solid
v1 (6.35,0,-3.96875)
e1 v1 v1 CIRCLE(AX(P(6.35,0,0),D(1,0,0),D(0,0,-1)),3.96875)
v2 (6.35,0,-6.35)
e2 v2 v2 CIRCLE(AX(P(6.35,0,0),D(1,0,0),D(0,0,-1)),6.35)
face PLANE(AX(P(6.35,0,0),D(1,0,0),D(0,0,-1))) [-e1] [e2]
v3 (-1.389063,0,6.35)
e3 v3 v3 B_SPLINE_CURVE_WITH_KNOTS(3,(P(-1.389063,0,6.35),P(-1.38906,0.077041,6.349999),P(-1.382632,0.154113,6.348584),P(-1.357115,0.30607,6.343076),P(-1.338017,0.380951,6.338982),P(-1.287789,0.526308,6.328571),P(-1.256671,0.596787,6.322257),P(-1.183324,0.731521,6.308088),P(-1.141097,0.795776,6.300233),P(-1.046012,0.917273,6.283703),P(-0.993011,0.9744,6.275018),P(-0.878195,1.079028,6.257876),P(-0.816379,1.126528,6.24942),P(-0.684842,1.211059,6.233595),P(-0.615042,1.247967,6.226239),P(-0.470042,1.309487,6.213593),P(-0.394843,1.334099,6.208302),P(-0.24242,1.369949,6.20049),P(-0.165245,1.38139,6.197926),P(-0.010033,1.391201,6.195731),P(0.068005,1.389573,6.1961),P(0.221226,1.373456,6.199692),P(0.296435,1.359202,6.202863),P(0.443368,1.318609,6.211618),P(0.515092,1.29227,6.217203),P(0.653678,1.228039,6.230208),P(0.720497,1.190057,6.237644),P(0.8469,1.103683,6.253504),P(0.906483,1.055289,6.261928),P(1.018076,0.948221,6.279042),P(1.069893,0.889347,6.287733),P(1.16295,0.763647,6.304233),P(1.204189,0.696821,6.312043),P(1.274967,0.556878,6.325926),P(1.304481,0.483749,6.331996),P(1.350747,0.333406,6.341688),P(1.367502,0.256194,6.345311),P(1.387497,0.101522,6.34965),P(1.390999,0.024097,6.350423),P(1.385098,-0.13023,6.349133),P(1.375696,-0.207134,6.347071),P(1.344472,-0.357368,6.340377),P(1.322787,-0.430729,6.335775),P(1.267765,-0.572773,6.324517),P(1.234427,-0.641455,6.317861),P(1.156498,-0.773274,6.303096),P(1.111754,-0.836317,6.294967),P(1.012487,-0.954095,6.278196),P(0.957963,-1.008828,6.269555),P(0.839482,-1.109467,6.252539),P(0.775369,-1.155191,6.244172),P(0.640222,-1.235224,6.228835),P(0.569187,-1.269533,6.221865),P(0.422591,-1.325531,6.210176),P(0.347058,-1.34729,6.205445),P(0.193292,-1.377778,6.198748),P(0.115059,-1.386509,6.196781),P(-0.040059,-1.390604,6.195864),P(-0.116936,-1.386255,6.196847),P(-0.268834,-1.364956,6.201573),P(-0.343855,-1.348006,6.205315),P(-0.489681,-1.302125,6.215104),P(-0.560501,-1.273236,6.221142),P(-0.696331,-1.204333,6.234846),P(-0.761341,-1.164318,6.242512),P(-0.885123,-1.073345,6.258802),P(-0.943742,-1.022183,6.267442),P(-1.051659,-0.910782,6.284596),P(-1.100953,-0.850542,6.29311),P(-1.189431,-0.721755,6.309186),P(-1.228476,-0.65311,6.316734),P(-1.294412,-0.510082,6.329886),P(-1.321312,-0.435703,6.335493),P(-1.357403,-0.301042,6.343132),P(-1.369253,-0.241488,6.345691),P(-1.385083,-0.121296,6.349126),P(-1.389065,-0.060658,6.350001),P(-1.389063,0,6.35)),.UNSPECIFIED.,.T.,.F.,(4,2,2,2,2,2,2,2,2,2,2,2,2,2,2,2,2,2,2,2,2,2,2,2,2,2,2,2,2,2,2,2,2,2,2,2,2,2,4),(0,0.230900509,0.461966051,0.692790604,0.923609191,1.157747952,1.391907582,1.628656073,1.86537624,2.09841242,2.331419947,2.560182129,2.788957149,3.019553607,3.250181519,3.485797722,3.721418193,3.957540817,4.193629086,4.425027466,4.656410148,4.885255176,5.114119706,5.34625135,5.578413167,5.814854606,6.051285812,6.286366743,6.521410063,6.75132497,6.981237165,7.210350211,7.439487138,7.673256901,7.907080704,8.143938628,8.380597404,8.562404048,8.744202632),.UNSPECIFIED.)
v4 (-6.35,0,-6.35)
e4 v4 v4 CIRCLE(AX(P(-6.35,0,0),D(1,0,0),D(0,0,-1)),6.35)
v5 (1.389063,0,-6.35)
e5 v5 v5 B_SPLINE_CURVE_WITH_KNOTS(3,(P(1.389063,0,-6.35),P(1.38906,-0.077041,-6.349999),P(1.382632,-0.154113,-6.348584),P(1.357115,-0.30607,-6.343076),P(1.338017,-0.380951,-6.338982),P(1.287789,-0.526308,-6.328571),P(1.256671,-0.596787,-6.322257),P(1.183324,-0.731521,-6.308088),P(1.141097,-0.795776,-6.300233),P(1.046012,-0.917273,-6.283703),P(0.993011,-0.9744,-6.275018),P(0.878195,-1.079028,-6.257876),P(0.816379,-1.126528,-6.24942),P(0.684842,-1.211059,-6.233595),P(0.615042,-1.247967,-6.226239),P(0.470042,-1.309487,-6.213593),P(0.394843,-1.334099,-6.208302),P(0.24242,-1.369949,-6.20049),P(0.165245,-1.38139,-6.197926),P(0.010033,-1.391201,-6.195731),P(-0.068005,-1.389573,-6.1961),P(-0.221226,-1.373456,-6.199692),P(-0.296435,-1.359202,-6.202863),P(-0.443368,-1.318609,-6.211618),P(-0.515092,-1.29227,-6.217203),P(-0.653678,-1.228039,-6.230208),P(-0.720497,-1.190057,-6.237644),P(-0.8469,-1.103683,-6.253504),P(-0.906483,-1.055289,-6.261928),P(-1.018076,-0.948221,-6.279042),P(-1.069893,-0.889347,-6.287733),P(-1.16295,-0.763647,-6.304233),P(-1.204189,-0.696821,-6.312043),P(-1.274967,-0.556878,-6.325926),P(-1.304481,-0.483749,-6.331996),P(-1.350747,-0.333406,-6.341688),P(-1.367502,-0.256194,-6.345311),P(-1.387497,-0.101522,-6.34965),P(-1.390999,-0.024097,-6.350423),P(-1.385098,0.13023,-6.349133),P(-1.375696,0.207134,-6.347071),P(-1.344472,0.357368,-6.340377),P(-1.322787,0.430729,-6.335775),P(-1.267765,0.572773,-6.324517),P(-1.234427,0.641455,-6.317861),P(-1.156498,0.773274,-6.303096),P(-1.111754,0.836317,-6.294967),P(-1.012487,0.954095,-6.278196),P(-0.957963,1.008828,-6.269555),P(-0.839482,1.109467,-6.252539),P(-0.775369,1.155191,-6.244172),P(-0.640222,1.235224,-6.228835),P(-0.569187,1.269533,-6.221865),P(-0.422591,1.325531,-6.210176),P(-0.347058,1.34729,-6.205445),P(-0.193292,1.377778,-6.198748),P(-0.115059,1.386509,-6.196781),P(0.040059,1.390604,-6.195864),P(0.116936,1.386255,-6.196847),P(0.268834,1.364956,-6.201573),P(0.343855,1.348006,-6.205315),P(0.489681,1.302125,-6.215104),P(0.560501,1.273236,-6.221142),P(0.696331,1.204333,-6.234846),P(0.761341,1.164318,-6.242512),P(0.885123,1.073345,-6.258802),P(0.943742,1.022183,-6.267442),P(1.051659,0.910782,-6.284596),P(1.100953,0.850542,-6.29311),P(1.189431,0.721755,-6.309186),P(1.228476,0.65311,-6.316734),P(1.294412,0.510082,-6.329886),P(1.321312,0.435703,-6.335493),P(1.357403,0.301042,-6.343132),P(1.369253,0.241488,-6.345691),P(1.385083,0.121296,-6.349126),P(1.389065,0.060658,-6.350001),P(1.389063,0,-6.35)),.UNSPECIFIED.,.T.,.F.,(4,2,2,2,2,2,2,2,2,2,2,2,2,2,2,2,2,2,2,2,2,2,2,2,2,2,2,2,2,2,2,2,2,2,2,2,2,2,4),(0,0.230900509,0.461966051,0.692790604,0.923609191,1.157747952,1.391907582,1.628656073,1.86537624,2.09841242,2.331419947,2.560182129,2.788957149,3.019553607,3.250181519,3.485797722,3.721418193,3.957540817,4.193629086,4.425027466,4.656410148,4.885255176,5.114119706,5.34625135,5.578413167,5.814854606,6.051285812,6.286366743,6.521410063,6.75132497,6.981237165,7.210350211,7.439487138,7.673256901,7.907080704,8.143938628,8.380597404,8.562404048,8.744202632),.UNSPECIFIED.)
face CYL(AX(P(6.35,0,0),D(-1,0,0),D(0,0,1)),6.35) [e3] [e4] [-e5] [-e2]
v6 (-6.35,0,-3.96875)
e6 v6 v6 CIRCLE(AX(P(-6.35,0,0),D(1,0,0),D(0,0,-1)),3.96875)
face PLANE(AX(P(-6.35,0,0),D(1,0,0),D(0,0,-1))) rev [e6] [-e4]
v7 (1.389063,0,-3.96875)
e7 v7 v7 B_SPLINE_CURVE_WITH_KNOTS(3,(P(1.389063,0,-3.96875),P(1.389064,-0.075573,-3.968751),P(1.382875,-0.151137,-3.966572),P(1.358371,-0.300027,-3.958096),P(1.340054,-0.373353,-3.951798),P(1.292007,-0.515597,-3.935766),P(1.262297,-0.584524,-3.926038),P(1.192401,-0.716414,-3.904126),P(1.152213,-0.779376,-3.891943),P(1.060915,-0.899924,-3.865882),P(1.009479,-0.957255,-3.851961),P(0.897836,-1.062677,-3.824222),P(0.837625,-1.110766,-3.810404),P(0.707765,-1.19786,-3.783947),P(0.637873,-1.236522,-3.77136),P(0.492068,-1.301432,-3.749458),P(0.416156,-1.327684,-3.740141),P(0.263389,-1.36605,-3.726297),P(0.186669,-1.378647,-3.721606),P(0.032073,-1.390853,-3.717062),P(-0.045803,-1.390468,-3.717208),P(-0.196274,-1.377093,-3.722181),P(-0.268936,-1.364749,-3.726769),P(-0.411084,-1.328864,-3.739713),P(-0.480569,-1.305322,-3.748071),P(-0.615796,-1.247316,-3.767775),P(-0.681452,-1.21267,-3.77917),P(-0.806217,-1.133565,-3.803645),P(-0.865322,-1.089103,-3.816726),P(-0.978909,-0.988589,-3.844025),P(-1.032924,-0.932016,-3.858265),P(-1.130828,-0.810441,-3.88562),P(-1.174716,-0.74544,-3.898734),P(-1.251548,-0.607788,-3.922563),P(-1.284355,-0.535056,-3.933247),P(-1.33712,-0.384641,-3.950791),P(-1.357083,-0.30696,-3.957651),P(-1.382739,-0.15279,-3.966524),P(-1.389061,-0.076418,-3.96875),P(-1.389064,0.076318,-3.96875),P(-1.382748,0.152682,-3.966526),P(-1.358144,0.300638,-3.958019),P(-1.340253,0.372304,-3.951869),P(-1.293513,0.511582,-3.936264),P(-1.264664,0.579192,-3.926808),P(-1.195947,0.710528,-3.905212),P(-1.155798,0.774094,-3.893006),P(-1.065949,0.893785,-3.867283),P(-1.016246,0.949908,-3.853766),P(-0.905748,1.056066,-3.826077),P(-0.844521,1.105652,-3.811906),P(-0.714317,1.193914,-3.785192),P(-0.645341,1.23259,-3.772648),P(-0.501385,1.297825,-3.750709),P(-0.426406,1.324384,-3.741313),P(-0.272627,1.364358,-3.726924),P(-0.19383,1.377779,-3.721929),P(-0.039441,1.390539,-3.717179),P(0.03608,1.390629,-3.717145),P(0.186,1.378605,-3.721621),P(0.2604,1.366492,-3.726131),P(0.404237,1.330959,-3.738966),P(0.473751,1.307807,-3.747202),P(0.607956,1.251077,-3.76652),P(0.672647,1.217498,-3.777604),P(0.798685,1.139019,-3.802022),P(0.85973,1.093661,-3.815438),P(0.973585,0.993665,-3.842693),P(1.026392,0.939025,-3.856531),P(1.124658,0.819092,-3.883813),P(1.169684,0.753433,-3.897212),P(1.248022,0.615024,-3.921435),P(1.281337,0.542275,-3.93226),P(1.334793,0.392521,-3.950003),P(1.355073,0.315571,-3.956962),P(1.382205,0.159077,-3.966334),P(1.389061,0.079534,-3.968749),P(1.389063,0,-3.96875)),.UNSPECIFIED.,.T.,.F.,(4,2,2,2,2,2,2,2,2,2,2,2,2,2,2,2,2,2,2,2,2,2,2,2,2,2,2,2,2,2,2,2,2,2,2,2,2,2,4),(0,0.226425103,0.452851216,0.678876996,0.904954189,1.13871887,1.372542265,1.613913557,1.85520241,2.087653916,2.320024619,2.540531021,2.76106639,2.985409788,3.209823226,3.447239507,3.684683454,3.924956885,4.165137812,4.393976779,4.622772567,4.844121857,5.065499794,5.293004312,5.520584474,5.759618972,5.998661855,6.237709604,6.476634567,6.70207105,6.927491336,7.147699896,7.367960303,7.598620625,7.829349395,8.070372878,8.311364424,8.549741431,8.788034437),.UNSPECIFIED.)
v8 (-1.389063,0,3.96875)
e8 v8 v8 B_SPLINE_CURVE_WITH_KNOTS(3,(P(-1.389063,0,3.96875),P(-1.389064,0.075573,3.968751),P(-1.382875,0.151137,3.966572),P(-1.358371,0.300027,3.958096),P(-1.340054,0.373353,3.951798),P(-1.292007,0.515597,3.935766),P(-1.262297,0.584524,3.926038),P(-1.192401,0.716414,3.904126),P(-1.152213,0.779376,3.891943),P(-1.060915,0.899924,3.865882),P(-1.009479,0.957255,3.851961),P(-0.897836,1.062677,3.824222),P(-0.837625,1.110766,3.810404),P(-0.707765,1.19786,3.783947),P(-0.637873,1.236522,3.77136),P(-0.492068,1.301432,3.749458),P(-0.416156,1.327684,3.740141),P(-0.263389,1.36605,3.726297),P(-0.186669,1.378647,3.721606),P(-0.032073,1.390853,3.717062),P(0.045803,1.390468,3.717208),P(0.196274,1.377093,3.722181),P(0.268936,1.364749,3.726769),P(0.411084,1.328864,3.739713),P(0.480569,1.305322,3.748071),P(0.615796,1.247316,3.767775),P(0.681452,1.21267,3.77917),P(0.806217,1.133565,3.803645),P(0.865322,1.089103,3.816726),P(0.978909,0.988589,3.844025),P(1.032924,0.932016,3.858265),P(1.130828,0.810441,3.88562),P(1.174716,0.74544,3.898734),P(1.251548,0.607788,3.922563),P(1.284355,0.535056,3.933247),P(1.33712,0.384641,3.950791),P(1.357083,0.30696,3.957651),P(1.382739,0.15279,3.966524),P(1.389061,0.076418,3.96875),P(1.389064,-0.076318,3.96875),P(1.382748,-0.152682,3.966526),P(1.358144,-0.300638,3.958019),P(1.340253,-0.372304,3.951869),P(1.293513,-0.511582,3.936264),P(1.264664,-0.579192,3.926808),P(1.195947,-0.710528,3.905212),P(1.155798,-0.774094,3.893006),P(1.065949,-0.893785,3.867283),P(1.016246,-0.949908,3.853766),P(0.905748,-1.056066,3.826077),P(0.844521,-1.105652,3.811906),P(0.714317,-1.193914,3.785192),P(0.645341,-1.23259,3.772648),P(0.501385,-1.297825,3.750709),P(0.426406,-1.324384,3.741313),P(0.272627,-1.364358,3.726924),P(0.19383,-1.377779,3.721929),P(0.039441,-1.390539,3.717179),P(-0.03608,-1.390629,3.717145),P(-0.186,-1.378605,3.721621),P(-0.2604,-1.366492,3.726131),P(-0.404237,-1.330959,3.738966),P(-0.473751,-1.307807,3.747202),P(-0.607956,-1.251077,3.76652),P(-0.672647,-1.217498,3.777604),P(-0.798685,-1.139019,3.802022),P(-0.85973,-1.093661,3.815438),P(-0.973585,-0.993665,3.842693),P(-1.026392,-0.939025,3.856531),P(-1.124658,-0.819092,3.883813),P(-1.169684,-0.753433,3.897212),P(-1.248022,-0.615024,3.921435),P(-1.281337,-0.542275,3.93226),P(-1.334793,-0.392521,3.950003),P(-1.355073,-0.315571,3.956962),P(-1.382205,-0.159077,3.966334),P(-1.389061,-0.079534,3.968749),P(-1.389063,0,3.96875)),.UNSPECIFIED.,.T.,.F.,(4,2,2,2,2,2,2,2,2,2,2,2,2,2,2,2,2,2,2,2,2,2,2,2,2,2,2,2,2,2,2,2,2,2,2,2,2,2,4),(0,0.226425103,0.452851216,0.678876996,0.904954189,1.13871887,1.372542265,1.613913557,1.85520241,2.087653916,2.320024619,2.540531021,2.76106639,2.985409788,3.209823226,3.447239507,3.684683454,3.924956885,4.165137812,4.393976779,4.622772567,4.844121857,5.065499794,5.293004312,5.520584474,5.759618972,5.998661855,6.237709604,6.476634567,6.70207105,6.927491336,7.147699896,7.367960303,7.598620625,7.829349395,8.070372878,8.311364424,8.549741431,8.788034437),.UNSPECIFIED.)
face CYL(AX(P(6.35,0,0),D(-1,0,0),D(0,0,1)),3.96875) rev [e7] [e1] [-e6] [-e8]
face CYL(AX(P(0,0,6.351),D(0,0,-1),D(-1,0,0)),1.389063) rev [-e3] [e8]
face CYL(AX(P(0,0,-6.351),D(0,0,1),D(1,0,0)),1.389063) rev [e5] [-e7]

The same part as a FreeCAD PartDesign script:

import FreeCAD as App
import Part
import Sketcher

V = App.Vector
Q = App.Units.Quantity

doc = App.newDocument("Part")
body = doc.addObject("PartDesign::Body", "Body")

# Sketch on YZ plane
sketch1 = doc.addObject("Sketcher::SketchObject", "Sketch")
body.addObject(sketch1)
sketch1.AttachmentSupport = (doc.YZ_Plane, [""])
sketch1.MapMode = "FlatFace"
sketch1.addGeometry(Part.Circle(V(0, 0, 0), V(0, 0, 1), 6.35), False)
sketch1.addGeometry(Part.Circle(V(0, 0, 0), V(0, 0, 1), 3.96875), False)
sketch1.addConstraint(Sketcher.Constraint("Coincident", 0, 3, -1, 1))
sketch1.addConstraint(Sketcher.Constraint("Coincident", 1, 3, -1, 1))
sketch1.addConstraint(Sketcher.Constraint("Diameter", 0, Q("0.5 in")))
sketch1.addConstraint(Sketcher.Constraint("Diameter", 1, Q("0.3125 in")))
pad1 = doc.addObject("PartDesign::Pad", "Pad")
body.addObject(pad1)
pad1.Profile = sketch1
pad1.Type = "TwoLengths"
pad1.Length = Q("0.25 in")
pad1.Length2 = Q("0.25 in")

# Sketch on XY plane
sketch2 = doc.addObject("Sketcher::SketchObject", "Sketch001")
body.addObject(sketch2)
sketch2.AttachmentSupport = (doc.XY_Plane, [""])
sketch2.MapMode = "FlatFace"
sketch2.AttachmentOffset = App.Placement(V(0, 0, -0.25 * 25.4), App.Rotation())
sketch2.addGeometry(Part.Circle(V(0, 0, 0), V(0, 0, 1), 1.389063), False)
sketch2.addConstraint(Sketcher.Constraint("Coincident", 0, 3, -1, 1))
sketch2.addConstraint(Sketcher.Constraint("Diameter", 0, Q("0.109375 in")))
pocket1 = doc.addObject("PartDesign::Pocket", "Pocket")
body.addObject(pocket1)
pocket1.Profile = sketch2
pocket1.Length = Q("0.5 in")
pocket1.Reversed = True

doc.recompute()
